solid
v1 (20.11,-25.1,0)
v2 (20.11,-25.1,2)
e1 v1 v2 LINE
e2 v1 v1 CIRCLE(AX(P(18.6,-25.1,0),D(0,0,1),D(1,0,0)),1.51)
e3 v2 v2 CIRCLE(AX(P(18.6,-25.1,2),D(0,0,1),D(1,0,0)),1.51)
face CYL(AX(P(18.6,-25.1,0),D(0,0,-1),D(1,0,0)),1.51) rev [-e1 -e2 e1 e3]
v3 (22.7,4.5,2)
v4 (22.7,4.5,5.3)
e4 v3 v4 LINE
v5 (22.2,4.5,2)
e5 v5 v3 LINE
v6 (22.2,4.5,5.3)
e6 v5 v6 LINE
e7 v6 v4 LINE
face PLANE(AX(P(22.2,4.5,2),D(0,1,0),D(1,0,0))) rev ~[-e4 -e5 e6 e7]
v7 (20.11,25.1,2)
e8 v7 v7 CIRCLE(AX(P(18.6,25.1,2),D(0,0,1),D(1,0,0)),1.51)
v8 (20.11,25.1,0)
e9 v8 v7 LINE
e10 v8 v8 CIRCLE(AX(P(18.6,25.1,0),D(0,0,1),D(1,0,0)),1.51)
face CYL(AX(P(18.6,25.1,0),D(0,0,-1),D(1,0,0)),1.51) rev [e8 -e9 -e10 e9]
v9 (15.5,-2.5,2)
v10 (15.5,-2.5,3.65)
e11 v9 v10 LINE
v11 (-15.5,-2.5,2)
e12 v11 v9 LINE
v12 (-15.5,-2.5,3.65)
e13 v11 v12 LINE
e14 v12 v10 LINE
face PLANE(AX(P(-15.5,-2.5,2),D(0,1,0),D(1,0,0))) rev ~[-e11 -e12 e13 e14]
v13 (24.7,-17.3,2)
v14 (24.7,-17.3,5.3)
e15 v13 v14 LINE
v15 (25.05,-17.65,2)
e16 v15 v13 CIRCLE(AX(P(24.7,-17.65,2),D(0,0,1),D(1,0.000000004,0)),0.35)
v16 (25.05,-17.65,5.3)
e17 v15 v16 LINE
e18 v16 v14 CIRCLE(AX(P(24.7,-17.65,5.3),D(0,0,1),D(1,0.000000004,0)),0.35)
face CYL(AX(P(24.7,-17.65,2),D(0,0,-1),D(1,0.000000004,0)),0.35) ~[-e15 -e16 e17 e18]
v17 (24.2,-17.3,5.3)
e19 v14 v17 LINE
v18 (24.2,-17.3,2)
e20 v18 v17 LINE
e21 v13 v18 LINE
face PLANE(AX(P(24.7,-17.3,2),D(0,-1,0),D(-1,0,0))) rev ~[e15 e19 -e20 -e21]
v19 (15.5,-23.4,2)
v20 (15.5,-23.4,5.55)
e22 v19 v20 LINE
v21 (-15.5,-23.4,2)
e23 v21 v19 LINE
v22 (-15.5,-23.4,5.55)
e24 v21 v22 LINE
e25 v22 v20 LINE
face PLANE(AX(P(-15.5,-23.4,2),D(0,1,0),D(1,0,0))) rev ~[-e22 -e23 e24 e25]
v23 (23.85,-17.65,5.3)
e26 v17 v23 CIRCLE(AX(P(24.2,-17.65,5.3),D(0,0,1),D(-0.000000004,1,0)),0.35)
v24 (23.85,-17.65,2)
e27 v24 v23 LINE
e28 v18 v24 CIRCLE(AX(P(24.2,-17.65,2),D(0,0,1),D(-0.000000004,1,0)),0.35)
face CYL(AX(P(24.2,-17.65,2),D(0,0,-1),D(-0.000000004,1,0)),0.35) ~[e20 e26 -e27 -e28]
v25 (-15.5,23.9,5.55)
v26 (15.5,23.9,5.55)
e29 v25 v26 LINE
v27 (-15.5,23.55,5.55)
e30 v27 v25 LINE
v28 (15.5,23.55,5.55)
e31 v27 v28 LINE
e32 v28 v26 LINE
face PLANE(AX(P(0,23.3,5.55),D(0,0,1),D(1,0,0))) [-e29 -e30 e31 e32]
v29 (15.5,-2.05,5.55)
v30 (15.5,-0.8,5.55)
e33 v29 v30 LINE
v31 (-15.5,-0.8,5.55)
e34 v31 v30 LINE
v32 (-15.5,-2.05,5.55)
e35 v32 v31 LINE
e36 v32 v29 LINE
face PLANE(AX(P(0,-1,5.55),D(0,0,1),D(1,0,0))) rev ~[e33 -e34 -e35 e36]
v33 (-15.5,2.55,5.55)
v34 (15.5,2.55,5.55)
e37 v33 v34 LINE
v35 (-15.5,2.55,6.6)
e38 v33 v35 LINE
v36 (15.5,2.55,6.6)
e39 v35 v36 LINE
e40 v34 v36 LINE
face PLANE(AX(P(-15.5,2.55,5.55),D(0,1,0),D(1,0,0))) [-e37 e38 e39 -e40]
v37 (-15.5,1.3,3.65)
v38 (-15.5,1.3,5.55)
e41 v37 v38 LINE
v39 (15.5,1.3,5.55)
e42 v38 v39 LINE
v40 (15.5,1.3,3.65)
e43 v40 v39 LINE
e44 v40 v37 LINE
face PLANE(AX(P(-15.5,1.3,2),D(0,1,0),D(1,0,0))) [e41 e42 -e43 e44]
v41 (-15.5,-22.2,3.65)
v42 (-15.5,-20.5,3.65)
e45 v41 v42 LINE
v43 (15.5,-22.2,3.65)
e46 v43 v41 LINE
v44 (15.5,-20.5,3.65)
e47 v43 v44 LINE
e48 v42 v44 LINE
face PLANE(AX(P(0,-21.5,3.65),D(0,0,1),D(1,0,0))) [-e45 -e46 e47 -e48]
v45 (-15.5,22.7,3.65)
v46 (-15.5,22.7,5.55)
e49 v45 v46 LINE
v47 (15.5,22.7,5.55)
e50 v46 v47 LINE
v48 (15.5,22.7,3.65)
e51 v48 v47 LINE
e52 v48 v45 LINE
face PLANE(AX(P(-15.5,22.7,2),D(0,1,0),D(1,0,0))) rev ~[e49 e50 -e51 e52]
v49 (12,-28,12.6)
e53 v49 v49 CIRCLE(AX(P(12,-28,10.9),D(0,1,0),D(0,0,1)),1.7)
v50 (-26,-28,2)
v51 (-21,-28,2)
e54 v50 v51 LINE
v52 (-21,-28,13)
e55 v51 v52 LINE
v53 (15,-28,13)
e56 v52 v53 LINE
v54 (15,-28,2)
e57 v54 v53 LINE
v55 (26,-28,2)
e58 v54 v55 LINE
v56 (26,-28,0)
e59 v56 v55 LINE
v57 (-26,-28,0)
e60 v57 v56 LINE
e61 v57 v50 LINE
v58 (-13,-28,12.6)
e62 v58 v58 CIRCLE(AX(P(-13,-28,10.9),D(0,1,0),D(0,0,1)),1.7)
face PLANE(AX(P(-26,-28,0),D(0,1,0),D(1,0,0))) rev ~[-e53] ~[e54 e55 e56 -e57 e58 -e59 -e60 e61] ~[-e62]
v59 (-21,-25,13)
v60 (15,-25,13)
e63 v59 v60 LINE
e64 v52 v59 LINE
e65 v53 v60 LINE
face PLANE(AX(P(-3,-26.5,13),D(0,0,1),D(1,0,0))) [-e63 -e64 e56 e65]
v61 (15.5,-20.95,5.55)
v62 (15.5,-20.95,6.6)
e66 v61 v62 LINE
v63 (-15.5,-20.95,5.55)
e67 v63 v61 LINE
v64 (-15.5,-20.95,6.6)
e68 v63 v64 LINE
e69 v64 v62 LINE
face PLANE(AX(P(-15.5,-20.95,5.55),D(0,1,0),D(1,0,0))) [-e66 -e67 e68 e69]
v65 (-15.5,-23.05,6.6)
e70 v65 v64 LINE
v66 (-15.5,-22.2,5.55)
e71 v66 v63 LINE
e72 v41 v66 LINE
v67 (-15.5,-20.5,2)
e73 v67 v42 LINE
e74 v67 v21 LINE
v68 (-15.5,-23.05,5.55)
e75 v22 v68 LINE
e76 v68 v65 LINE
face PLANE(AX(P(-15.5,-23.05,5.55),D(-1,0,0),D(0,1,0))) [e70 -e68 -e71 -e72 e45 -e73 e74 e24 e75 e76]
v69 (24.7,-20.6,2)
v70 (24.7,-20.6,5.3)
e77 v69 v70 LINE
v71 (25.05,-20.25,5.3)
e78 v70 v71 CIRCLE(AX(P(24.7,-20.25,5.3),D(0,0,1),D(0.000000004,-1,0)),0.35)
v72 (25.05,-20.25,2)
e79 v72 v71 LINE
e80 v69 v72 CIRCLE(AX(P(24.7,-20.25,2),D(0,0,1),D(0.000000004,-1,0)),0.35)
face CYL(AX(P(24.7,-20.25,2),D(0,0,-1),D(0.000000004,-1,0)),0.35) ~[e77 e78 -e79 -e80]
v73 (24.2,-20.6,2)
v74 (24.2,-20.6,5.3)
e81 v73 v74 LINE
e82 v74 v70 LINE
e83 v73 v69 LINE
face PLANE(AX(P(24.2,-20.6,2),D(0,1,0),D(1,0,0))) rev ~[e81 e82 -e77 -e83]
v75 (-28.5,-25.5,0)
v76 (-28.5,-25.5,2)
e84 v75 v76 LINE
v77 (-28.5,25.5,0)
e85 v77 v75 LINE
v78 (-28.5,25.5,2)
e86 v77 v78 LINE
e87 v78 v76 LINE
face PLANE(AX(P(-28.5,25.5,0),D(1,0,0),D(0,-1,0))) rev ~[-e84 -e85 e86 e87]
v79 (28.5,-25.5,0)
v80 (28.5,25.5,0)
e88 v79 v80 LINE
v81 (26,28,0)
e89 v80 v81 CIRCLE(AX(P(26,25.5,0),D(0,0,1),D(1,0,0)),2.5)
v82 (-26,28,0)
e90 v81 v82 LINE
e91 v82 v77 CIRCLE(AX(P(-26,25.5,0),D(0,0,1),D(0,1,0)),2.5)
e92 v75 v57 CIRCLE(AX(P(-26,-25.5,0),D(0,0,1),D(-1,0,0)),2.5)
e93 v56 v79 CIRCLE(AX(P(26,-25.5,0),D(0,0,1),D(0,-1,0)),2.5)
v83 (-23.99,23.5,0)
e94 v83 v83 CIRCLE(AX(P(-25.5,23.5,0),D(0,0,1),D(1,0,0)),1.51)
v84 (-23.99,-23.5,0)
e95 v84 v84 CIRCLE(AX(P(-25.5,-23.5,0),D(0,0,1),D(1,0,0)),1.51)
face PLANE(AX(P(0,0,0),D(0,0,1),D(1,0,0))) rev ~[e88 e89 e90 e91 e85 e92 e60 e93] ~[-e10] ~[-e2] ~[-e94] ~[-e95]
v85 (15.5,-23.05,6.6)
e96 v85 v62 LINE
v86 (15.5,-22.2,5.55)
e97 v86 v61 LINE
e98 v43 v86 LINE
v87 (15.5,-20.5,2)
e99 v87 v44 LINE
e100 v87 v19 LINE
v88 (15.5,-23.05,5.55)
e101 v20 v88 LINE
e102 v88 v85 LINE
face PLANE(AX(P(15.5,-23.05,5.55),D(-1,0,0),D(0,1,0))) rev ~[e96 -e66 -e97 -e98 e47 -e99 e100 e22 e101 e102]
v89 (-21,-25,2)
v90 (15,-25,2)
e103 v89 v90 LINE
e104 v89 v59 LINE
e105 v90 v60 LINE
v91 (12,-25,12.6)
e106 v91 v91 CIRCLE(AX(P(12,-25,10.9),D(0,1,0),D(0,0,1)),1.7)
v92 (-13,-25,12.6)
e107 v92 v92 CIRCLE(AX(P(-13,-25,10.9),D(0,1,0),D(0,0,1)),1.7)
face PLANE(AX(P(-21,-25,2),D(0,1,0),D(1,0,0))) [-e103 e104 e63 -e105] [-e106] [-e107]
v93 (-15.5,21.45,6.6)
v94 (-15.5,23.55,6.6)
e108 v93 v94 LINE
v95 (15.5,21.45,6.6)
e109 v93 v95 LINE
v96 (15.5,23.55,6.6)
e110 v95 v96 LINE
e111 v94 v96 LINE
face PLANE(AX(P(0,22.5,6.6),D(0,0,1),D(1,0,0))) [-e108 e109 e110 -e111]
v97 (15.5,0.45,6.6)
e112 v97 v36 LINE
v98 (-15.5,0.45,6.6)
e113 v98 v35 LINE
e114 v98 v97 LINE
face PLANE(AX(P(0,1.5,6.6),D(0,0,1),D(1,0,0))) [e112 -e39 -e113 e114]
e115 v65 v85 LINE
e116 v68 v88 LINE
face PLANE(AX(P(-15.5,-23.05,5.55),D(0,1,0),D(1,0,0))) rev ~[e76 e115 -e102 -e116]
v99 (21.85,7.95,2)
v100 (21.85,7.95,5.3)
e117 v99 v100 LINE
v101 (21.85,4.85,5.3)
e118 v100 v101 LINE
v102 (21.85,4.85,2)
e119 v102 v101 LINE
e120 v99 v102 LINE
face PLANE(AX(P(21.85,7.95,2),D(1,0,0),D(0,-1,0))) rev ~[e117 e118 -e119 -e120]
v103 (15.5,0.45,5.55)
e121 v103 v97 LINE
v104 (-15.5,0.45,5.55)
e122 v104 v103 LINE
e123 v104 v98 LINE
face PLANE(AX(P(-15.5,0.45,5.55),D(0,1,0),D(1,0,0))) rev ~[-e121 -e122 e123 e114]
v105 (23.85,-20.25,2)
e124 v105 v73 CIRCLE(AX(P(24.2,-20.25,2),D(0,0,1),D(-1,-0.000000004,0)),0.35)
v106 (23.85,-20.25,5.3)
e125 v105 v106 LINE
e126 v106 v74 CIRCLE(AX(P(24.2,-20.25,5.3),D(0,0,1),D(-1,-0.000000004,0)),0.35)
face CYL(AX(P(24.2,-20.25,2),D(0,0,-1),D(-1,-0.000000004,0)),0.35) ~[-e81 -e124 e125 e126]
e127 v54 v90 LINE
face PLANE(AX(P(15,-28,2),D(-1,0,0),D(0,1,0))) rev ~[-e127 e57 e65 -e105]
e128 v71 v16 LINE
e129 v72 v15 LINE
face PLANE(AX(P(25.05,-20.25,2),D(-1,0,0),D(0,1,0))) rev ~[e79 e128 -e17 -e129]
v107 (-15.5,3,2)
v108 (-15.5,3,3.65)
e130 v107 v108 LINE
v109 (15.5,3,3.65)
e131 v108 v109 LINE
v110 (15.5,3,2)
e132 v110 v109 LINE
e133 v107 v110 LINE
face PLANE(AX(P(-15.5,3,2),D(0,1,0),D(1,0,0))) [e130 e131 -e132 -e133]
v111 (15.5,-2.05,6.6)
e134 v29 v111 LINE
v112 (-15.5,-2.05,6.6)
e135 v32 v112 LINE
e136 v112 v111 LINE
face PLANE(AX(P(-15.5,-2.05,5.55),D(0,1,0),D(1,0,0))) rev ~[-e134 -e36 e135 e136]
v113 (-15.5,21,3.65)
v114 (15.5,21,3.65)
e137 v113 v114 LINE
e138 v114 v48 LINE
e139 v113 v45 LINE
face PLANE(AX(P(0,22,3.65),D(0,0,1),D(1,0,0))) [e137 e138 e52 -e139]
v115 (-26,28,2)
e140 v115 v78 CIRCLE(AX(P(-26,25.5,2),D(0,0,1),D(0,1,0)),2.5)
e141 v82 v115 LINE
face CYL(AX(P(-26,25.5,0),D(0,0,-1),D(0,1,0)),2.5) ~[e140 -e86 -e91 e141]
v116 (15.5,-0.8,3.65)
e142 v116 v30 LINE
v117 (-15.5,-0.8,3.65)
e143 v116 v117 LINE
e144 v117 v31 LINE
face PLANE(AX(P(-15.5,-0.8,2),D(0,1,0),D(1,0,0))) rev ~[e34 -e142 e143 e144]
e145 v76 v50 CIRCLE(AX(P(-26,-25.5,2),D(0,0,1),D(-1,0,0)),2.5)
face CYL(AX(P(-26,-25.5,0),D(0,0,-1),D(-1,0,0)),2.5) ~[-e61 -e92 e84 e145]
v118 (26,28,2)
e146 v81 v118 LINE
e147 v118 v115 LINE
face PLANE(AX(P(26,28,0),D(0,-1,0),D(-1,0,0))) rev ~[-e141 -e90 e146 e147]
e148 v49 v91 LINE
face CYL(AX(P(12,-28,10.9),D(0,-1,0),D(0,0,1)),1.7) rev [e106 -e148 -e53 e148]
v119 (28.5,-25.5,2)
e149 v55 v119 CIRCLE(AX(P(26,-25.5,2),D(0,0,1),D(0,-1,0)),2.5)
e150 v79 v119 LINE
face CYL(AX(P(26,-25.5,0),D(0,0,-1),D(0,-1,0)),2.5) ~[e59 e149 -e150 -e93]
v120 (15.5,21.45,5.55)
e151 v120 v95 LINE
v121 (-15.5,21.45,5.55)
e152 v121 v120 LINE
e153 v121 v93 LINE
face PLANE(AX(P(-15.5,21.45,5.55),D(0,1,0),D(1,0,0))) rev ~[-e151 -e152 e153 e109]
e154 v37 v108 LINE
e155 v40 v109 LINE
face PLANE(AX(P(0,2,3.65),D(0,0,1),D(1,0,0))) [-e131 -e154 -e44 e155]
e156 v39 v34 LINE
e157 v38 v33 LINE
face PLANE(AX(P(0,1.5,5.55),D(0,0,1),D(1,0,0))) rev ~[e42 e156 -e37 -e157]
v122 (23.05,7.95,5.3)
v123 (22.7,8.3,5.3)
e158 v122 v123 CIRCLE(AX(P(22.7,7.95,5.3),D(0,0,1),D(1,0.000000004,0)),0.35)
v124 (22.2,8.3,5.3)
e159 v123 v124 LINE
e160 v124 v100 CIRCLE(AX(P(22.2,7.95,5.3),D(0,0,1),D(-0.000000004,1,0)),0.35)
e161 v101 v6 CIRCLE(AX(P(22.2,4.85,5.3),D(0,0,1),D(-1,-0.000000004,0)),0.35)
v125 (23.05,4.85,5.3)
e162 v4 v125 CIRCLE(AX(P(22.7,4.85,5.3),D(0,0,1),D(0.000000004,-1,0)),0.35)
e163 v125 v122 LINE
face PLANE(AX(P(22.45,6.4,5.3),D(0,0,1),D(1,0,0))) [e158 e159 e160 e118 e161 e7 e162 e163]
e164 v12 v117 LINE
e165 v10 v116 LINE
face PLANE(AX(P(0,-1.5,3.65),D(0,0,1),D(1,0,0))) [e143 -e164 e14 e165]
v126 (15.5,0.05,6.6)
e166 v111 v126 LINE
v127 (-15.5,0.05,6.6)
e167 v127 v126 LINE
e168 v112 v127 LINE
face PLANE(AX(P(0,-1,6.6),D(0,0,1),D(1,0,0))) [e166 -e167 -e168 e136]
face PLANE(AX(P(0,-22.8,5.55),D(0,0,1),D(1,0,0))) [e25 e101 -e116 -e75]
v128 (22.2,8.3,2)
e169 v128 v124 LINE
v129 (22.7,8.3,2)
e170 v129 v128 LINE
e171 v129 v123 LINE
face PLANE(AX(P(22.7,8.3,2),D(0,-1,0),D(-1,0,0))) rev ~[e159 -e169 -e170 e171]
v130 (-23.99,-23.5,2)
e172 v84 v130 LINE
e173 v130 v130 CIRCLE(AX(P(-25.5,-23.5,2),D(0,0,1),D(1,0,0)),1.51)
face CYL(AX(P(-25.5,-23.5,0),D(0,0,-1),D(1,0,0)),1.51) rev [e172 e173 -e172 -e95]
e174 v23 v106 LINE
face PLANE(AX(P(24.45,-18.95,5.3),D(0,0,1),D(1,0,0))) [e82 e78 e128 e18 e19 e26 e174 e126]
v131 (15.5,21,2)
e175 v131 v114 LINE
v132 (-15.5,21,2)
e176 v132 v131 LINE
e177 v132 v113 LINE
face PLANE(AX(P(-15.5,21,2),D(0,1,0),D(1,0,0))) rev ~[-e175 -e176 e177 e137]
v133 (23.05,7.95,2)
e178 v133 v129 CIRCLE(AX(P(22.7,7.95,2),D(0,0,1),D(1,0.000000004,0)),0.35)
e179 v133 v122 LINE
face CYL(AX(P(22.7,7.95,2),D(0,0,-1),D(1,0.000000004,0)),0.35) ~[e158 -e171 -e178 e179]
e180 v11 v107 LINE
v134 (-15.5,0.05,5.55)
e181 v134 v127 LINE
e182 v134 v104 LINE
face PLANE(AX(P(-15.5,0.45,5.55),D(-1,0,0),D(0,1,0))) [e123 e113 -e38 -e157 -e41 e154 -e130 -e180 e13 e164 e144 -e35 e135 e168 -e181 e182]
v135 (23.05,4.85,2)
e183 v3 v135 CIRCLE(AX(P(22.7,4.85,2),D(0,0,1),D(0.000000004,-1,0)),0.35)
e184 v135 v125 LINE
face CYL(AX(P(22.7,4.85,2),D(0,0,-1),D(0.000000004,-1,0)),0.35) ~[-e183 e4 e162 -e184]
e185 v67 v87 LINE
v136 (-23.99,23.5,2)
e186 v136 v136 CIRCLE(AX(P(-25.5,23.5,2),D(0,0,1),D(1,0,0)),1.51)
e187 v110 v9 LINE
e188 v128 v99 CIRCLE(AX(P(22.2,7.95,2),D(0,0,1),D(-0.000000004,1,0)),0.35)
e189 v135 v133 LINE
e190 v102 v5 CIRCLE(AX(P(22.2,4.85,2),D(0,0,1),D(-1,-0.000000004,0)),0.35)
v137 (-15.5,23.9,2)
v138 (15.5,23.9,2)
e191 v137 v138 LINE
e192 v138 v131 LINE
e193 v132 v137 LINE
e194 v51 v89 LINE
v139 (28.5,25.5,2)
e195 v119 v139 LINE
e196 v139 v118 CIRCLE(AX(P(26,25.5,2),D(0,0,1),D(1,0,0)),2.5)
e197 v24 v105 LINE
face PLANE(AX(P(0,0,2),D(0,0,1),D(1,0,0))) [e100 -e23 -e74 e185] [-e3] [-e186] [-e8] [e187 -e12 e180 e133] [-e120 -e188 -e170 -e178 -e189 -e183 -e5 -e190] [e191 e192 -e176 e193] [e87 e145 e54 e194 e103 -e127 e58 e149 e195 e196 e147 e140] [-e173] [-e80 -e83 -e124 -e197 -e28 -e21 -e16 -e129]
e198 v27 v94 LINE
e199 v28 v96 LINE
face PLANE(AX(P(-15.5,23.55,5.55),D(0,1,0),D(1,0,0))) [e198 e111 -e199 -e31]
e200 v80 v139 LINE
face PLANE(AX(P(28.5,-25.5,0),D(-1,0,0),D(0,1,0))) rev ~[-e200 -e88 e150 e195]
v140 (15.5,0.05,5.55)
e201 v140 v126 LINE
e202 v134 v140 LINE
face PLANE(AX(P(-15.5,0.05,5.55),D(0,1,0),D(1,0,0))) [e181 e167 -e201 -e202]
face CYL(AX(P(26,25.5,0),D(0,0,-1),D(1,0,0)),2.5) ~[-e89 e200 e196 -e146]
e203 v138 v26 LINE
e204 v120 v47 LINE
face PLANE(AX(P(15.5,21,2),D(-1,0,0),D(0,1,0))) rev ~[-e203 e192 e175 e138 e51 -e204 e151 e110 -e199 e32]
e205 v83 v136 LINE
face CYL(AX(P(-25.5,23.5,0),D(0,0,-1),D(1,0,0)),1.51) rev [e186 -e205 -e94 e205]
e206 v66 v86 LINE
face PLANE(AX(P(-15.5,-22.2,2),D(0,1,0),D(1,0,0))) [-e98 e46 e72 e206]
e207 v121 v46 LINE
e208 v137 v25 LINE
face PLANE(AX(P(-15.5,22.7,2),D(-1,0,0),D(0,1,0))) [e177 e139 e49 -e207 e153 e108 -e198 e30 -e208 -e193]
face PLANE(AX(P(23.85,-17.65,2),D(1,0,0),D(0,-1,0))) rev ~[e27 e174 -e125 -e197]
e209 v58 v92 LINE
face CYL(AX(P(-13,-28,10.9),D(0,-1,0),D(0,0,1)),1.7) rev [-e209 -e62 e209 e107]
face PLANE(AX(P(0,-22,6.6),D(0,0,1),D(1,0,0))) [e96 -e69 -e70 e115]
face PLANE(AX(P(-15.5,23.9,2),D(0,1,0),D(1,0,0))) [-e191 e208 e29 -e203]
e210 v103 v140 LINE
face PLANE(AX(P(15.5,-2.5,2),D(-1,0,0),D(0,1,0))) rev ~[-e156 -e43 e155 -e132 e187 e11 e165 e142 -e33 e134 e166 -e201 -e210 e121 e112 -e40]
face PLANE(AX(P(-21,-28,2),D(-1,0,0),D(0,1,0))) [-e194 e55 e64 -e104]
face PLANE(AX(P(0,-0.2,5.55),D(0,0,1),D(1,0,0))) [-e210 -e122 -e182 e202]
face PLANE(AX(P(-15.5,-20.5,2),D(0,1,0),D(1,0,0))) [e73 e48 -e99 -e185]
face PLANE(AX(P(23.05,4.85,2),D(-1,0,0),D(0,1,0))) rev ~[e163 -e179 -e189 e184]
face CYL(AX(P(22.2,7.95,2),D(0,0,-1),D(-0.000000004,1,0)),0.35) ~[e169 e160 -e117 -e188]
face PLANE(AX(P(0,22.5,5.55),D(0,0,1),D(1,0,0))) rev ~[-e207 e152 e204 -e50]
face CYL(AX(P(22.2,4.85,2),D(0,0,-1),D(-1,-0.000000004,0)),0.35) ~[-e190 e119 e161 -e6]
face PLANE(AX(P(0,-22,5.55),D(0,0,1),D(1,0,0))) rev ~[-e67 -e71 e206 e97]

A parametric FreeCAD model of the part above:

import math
import FreeCAD as App
import Part
import Sketcher
from FreeCAD import Vector

doc = App.newDocument("Part")
body = doc.addObject("PartDesign::Body", "Body")

sketch1 = body.newObject("Sketcher::SketchObject", "Sketch")
sketch1.AttachmentSupport = (doc.getObject("XY_Plane"), [""])
sketch1.MapMode = "FlatFace"
sketch1.addGeometry([
    Part.LineSegment(Vector(-26, -28, 0), Vector(26, -28, 0)),
    Part.ArcOfCircle(Part.Circle(Vector(26, -25.5, 0), Vector(0, 0, 1), 2.5), math.radians(-90), math.radians(0)),
    Part.LineSegment(Vector(28.5, -25.5, 0), Vector(28.5, 25.5, 0)),
    Part.ArcOfCircle(Part.Circle(Vector(26, 25.5, 0), Vector(0, 0, 1), 2.5), math.radians(0), math.radians(90)),
    Part.LineSegment(Vector(26, 28, 0), Vector(-26, 28, 0)),
    Part.ArcOfCircle(Part.Circle(Vector(-26, 25.5, 0), Vector(0, 0, 1), 2.5), math.radians(90), math.radians(180)),
    Part.LineSegment(Vector(-28.5, 25.5, 0), Vector(-28.5, -25.5, 0)),
    Part.ArcOfCircle(Part.Circle(Vector(-26, -25.5, 0), Vector(0, 0, 1), 2.5), math.radians(180), math.radians(270)),
    Part.Circle(Vector(-25.5, -23.5, 0), Vector(0, 0, 1), 1.51),
    Part.Circle(Vector(18.6, -25.1, 0), Vector(0, 0, 1), 1.51),
    Part.Circle(Vector(-25.5, 23.5, 0), Vector(0, 0, 1), 1.51),
    Part.Circle(Vector(18.6, 25.1, 0), Vector(0, 0, 1), 1.51),
], False)
sketch1.addConstraint([
    Sketcher.Constraint("Tangent", 0, 2, 1, 1),
    Sketcher.Constraint("Tangent", 1, 2, 2, 1),
    Sketcher.Constraint("Tangent", 2, 2, 3, 1),
    Sketcher.Constraint("Tangent", 3, 2, 4, 1),
    Sketcher.Constraint("Tangent", 4, 2, 5, 1),
    Sketcher.Constraint("Tangent", 5, 2, 6, 1),
    Sketcher.Constraint("Tangent", 6, 2, 7, 1),
    Sketcher.Constraint("Tangent", 7, 2, 0, 1),
    Sketcher.Constraint("Horizontal", 0),
    Sketcher.Constraint("Vertical", 2),
    Sketcher.Constraint("Horizontal", 4),
    Sketcher.Constraint("Vertical", 6),
    Sketcher.Constraint("Equal", 1, 3),
    Sketcher.Constraint("Equal", 3, 5),
    Sketcher.Constraint("Equal", 5, 7),
    Sketcher.Constraint("Equal", 8, 9),
    Sketcher.Constraint("Equal", 9, 10),
    Sketcher.Constraint("Equal", 10, 11),
    Sketcher.Constraint("Symmetric", 1, 3, 5, 3, -1, 1),
    Sketcher.Constraint("Symmetric", 8, 3, 10, 3, -1),
    Sketcher.Constraint("Symmetric", 9, 3, 11, 3, -1),
    Sketcher.Constraint("Radius", 1, 2.5),
    Sketcher.Constraint("Diameter", 8, 3.02),
    Sketcher.Constraint("DistanceX", 0, 1, 0, 2, 52.0),
    Sketcher.Constraint("DistanceY", 2, 1, 2, 2, 51.0),
    Sketcher.Constraint("DistanceY", 7, 3, 8, 3, 2.0),
    Sketcher.Constraint("DistanceX", 5, 2, 10, 3, 3.0),
    Sketcher.Constraint("DistanceX", -1, 1, 9, 3, 18.6),
    Sketcher.Constraint("DistanceY", 9, 3, -1, 1, 25.1),
])
pad1 = body.newObject("PartDesign::Pad", "Pad")
pad1.Profile = sketch1
pad1.Length = 2

sketch2 = body.newObject("Sketcher::SketchObject", "Sketch001")
sketch2.AttachmentSupport = (doc.getObject("XY_Plane"), [""])
sketch2.MapMode = "FlatFace"
sketch2.AttachmentOffset = App.Placement(Vector(0, 0, 2), App.Rotation())
sketch2.addGeometry([
    Part.LineSegment(Vector(-21, -25, 0), Vector(-21, -28, 0)),
    Part.LineSegment(Vector(-21, -28, 0), Vector(15, -28, 0)),
    Part.LineSegment(Vector(15, -28, 0), Vector(15, -25, 0)),
    Part.LineSegment(Vector(15, -25, 0), Vector(-21, -25, 0)),
], False)
sketch2.addConstraint([
    Sketcher.Constraint("Coincident", 0, 2, 1, 1),
    Sketcher.Constraint("Coincident", 1, 2, 2, 1),
    Sketcher.Constraint("Coincident", 2, 2, 3, 1),
    Sketcher.Constraint("Coincident", 3, 2, 0, 1),
    Sketcher.Constraint("Vertical", 0),
    Sketcher.Constraint("Horizontal", 1),
    Sketcher.Constraint("Vertical", 2),
    Sketcher.Constraint("Horizontal", 3),
    Sketcher.Constraint("DistanceX", 1, 1, 1, 2, 36.0),
    Sketcher.Constraint("DistanceY", 0, 2, 0, 1, 3.0),
    Sketcher.Constraint("DistanceX", 0, 2, -1, 1, 21.0),
    Sketcher.Constraint("DistanceY", 0, 2, -1, 1, 28.0),
])
pad2 = body.newObject("PartDesign::Pad", "Pad001")
pad2.Profile = sketch2
pad2.Length = 11

sketch3 = body.newObject("Sketcher::SketchObject", "Sketch002")
sketch3.AttachmentSupport = (doc.getObject("XZ_Plane"), [""])
sketch3.MapMode = "FlatFace"
sketch3.AttachmentOffset = App.Placement(Vector(0, 0, 28), App.Rotation())
sketch3.addGeometry([
    Part.Circle(Vector(-13, 10.9, 0), Vector(0, 0, 1), 1.7),
    Part.Circle(Vector(12, 10.9, 0), Vector(0, 0, 1), 1.7),
], False)
sketch3.addConstraint([
    Sketcher.Constraint("Equal", 0, 1),
    Sketcher.Constraint("Horizontal", 0, 3, 1, 3),
    Sketcher.Constraint("Diameter", 0, 3.4),
    Sketcher.Constraint("DistanceX", 0, 3, -1, 1, 13.0),
    Sketcher.Constraint("DistanceX", -1, 1, 1, 3, 12.0),
    Sketcher.Constraint("DistanceY", -1, 1, 0, 3, 10.9),
])
pocket1 = body.newObject("PartDesign::Pocket", "Pocket")
pocket1.Profile = sketch3
pocket1.Length = 3

sketch4 = body.newObject("Sketcher::SketchObject", "Sketch003")
sketch4.AttachmentSupport = (doc.getObject("XY_Plane"), [""])
sketch4.MapMode = "FlatFace"
sketch4.AttachmentOffset = App.Placement(Vector(0, 0, 2), App.Rotation())
sketch4.addGeometry([
    Part.LineSegment(Vector(-15.5, 3, 0), Vector(-15.5, 1, 0)),
    Part.LineSegment(Vector(-15.5, 1, 0), Vector(15.5, 1, 0)),
    Part.LineSegment(Vector(15.5, 1, 0), Vector(15.5, 3, 0)),
    Part.LineSegment(Vector(15.5, 3, 0), Vector(-15.5, 3, 0)),
    Part.LineSegment(Vector(-15.5, 23, 0), Vector(-15.5, 21, 0)),
    Part.LineSegment(Vector(-15.5, 21, 0), Vector(15.5, 21, 0)),
    Part.LineSegment(Vector(15.5, 21, 0), Vector(15.5, 23, 0)),
    Part.LineSegment(Vector(15.5, 23, 0), Vector(-15.5, 23, 0)),
], False)
sketch4.addConstraint([
    Sketcher.Constraint("Coincident", 0, 2, 1, 1),
    Sketcher.Constraint("Coincident", 1, 2, 2, 1),
    Sketcher.Constraint("Coincident", 2, 2, 3, 1),
    Sketcher.Constraint("Coincident", 3, 2, 0, 1),
    Sketcher.Constraint("Coincident", 4, 2, 5, 1),
    Sketcher.Constraint("Coincident", 5, 2, 6, 1),
    Sketcher.Constraint("Coincident", 6, 2, 7, 1),
    Sketcher.Constraint("Coincident", 7, 2, 4, 1),
    Sketcher.Constraint("Vertical", 0),
    Sketcher.Constraint("Horizontal", 1),
    Sketcher.Constraint("Vertical", 2),
    Sketcher.Constraint("Horizontal", 3),
    Sketcher.Constraint("Vertical", 4),
    Sketcher.Constraint("Horizontal", 5),
    Sketcher.Constraint("Vertical", 6),
    Sketcher.Constraint("Horizontal", 7),
    Sketcher.Constraint("Vertical", 3, 2, 4, 2),
    Sketcher.Constraint("Vertical", 2, 2, 5, 2),
    Sketcher.Constraint("Equal", 2, 4),
    Sketcher.Constraint("DistanceX", 1, 1, 1, 2, 31.0),
    Sketcher.Constraint("DistanceY", 0, 2, 0, 1, 2.0),
    Sketcher.Constraint("DistanceY", -1, 1, 0, 2, 1.0),
    Sketcher.Constraint("DistanceY", -1, 1, 4, 2, 21.0),
    Sketcher.Constraint("DistanceX", 0, 2, -1, 1, 15.5),
])
pad3 = body.newObject("PartDesign::Pad", "Pad002")
pad3.Profile = sketch4
pad3.Length = 1.65

sketch5 = body.newObject("Sketcher::SketchObject", "Sketch004")
sketch5.AttachmentSupport = (doc.getObject("XY_Plane"), [""])
sketch5.MapMode = "FlatFace"
sketch5.AttachmentOffset = App.Placement(Vector(0, 0, 2), App.Rotation())
sketch5.addGeometry([
    Part.LineSegment(Vector(-15.5, 1.3, 0), Vector(-15.5, 0.1, 0)),
    Part.LineSegment(Vector(-15.5, 0.1, 0), Vector(15.5, 0.1, 0)),
    Part.LineSegment(Vector(15.5, 0.1, 0), Vector(15.5, 1.3, 0)),
    Part.LineSegment(Vector(15.5, 1.3, 0), Vector(-15.5, 1.3, 0)),
    Part.LineSegment(Vector(-15.5, 23.9, 0), Vector(-15.5, 22.7, 0)),
    Part.LineSegment(Vector(-15.5, 22.7, 0), Vector(15.5, 22.7, 0)),
    Part.LineSegment(Vector(15.5, 22.7, 0), Vector(15.5, 23.9, 0)),
    Part.LineSegment(Vector(15.5, 23.9, 0), Vector(-15.5, 23.9, 0)),
], False)
sketch5.addConstraint([
    Sketcher.Constraint("Coincident", 0, 2, 1, 1),
    Sketcher.Constraint("Coincident", 1, 2, 2, 1),
    Sketcher.Constraint("Coincident", 2, 2, 3, 1),
    Sketcher.Constraint("Coincident", 3, 2, 0, 1),
    Sketcher.Constraint("Coincident", 4, 2, 5, 1),
    Sketcher.Constraint("Coincident", 5, 2, 6, 1),
    Sketcher.Constraint("Coincident", 6, 2, 7, 1),
    Sketcher.Constraint("Coincident", 7, 2, 4, 1),
    Sketcher.Constraint("Vertical", 0),
    Sketcher.Constraint("Horizontal", 1),
    Sketcher.Constraint("Vertical", 2),
    Sketcher.Constraint("Horizontal", 3),
    Sketcher.Constraint("Vertical", 4),
    Sketcher.Constraint("Horizontal", 5),
    Sketcher.Constraint("Vertical", 6),
    Sketcher.Constraint("Horizontal", 7),
    Sketcher.Constraint("Vertical", 3, 2, 4, 2),
    Sketcher.Constraint("Vertical", 2, 2, 5, 2),
    Sketcher.Constraint("Equal", 2, 4),
    Sketcher.Constraint("DistanceX", 1, 1, 1, 2, 31.0),
    Sketcher.Constraint("DistanceY", 0, 2, 0, 1, 1.2),
    Sketcher.Constraint("DistanceX", 0, 2, -1, 1, 15.5),
    Sketcher.Constraint("DistanceY", -1, 1, 0, 2, 0.1),
    Sketcher.Constraint("DistanceY", -1, 1, 4, 2, 22.7),
])
pad4 = body.newObject("PartDesign::Pad", "Pad003")
pad4.Profile = sketch5
pad4.Length = 3.55

sketch6 = body.newObject("Sketcher::SketchObject", "Sketch005")
sketch6.AttachmentSupport = (doc.getObject("XY_Plane"), [""])
sketch6.MapMode = "FlatFace"
sketch6.AttachmentOffset = App.Placement(Vector(0, 0, 5.55), App.Rotation())
sketch6.addGeometry([
    Part.LineSegment(Vector(-15.5, 2.55, 0), Vector(-15.5, 0.45, 0)),
    Part.LineSegment(Vector(-15.5, 0.45, 0), Vector(15.5, 0.45, 0)),
    Part.LineSegment(Vector(15.5, 0.45, 0), Vector(15.5, 2.55, 0)),
    Part.LineSegment(Vector(15.5, 2.55, 0), Vector(-15.5, 2.55, 0)),
    Part.LineSegment(Vector(-15.5, 23.55, 0), Vector(-15.5, 21.45, 0)),
    Part.LineSegment(Vector(-15.5, 21.45, 0), Vector(15.5, 21.45, 0)),
    Part.LineSegment(Vector(15.5, 21.45, 0), Vector(15.5, 23.55, 0)),
    Part.LineSegment(Vector(15.5, 23.55, 0), Vector(-15.5, 23.55, 0)),
], False)
sketch6.addConstraint([
    Sketcher.Constraint("Coincident", 0, 2, 1, 1),
    Sketcher.Constraint("Coincident", 1, 2, 2, 1),
    Sketcher.Constraint("Coincident", 2, 2, 3, 1),
    Sketcher.Constraint("Coincident", 3, 2, 0, 1),
    Sketcher.Constraint("Coincident", 4, 2, 5, 1),
    Sketcher.Constraint("Coincident", 5, 2, 6, 1),
    Sketcher.Constraint("Coincident", 6, 2, 7, 1),
    Sketcher.Constraint("Coincident", 7, 2, 4, 1),
    Sketcher.Constraint("Vertical", 0),
    Sketcher.Constraint("Horizontal", 1),
    Sketcher.Constraint("Vertical", 2),
    Sketcher.Constraint("Horizontal", 3),
    Sketcher.Constraint("Vertical", 4),
    Sketcher.Constraint("Horizontal", 5),
    Sketcher.Constraint("Vertical", 6),
    Sketcher.Constraint("Horizontal", 7),
    Sketcher.Constraint("Vertical", 3, 2, 4, 2),
    Sketcher.Constraint("Vertical", 2, 2, 5, 2),
    Sketcher.Constraint("Equal", 2, 4),
    Sketcher.Constraint("DistanceX", 1, 1, 1, 2, 31.0),
    Sketcher.Constraint("DistanceY", 0, 2, 0, 1, 2.1),
    Sketcher.Constraint("DistanceY", 0, 2, 4, 2, 21.0),
    Sketcher.Constraint("DistanceX", 0, 2, -1, 1, 15.5),
    Sketcher.Constraint("DistanceY", -1, 1, 0, 2, 0.45),
])
pad5 = body.newObject("PartDesign::Pad", "Pad004")
pad5.Profile = sketch6
pad5.Length = 1.05

sketch7 = body.newObject("Sketcher::SketchObject", "Sketch006")
sketch7.AttachmentSupport = (doc.getObject("XY_Plane"), [""])
sketch7.MapMode = "FlatFace"
sketch7.AttachmentOffset = App.Placement(Vector(0, 0, 2), App.Rotation())
sketch7.addGeometry([
    Part.LineSegment(Vector(-15.5, -20.5, 0), Vector(-15.5, -22.5, 0)),
    Part.LineSegment(Vector(-15.5, -22.5, 0), Vector(15.5, -22.5, 0)),
    Part.LineSegment(Vector(15.5, -22.5, 0), Vector(15.5, -20.5, 0)),
    Part.LineSegment(Vector(15.5, -20.5, 0), Vector(-15.5, -20.5, 0)),
    Part.LineSegment(Vector(-15.5, -0.5, 0), Vector(-15.5, -2.5, 0)),
    Part.LineSegment(Vector(-15.5, -2.5, 0), Vector(15.5, -2.5, 0)),
    Part.LineSegment(Vector(15.5, -2.5, 0), Vector(15.5, -0.5, 0)),
    Part.LineSegment(Vector(15.5, -0.5, 0), Vector(-15.5, -0.5, 0)),
], False)
sketch7.addConstraint([
    Sketcher.Constraint("Coincident", 0, 2, 1, 1),
    Sketcher.Constraint("Coincident", 1, 2, 2, 1),
    Sketcher.Constraint("Coincident", 2, 2, 3, 1),
    Sketcher.Constraint("Coincident", 3, 2, 0, 1),
    Sketcher.Constraint("Coincident", 4, 2, 5, 1),
    Sketcher.Constraint("Coincident", 5, 2, 6, 1),
    Sketcher.Constraint("Coincident", 6, 2, 7, 1),
    Sketcher.Constraint("Coincident", 7, 2, 4, 1),
    Sketcher.Constraint("Vertical", 0),
    Sketcher.Constraint("Horizontal", 1),
    Sketcher.Constraint("Vertical", 2),
    Sketcher.Constraint("Horizontal", 3),
    Sketcher.Constraint("Vertical", 4),
    Sketcher.Constraint("Horizontal", 5),
    Sketcher.Constraint("Vertical", 6),
    Sketcher.Constraint("Horizontal", 7),
    Sketcher.Constraint("Vertical", 3, 2, 4, 2),
    Sketcher.Constraint("Vertical", 2, 2, 5, 2),
    Sketcher.Constraint("Equal", 2, 4),
    Sketcher.Constraint("DistanceX", 1, 1, 1, 2, 31.0),
    Sketcher.Constraint("DistanceY", 0, 2, 0, 1, 2.0),
    Sketcher.Constraint("DistanceY", 3, 2, 4, 2, 18.0),
    Sketcher.Constraint("DistanceX", 0, 2, -1, 1, 15.5),
    Sketcher.Constraint("DistanceY", 0, 2, -1, 1, 22.5),
])
pad6 = body.newObject("PartDesign::Pad", "Pad005")
pad6.Profile = sketch7
pad6.Length = 1.65

sketch8 = body.newObject("Sketcher::SketchObject", "Sketch007")
sketch8.AttachmentSupport = (doc.getObject("XY_Plane"), [""])
sketch8.MapMode = "FlatFace"
sketch8.AttachmentOffset = App.Placement(Vector(0, 0, 2), App.Rotation())
sketch8.addGeometry([
    Part.LineSegment(Vector(-15.5, -22.2, 0), Vector(-15.5, -23.4, 0)),
    Part.LineSegment(Vector(-15.5, -23.4, 0), Vector(15.5, -23.4, 0)),
    Part.LineSegment(Vector(15.5, -23.4, 0), Vector(15.5, -22.2, 0)),
    Part.LineSegment(Vector(15.5, -22.2, 0), Vector(-15.5, -22.2, 0)),
    Part.LineSegment(Vector(-15.5, 0.4, 0), Vector(-15.5, -0.8, 0)),
    Part.LineSegment(Vector(-15.5, -0.8, 0), Vector(15.5, -0.8, 0)),
    Part.LineSegment(Vector(15.5, -0.8, 0), Vector(15.5, 0.4, 0)),
    Part.LineSegment(Vector(15.5, 0.4, 0), Vector(-15.5, 0.4, 0)),
], False)
sketch8.addConstraint([
    Sketcher.Constraint("Coincident", 0, 2, 1, 1),
    Sketcher.Constraint("Coincident", 1, 2, 2, 1),
    Sketcher.Constraint("Coincident", 2, 2, 3, 1),
    Sketcher.Constraint("Coincident", 3, 2, 0, 1),
    Sketcher.Constraint("Coincident", 4, 2, 5, 1),
    Sketcher.Constraint("Coincident", 5, 2, 6, 1),
    Sketcher.Constraint("Coincident", 6, 2, 7, 1),
    Sketcher.Constraint("Coincident", 7, 2, 4, 1),
    Sketcher.Constraint("Vertical", 0),
    Sketcher.Constraint("Horizontal", 1),
    Sketcher.Constraint("Vertical", 2),
    Sketcher.Constraint("Horizontal", 3),
    Sketcher.Constraint("Vertical", 4),
    Sketcher.Constraint("Horizontal", 5),
    Sketcher.Constraint("Vertical", 6),
    Sketcher.Constraint("Horizontal", 7),
    Sketcher.Constraint("Vertical", 3, 2, 4, 2),
    Sketcher.Constraint("Vertical", 2, 2, 5, 2),
    Sketcher.Constraint("Equal", 2, 4),
    Sketcher.Constraint("DistanceX", 1, 1, 1, 2, 31.0),
    Sketcher.Constraint("DistanceY", 0, 2, 0, 1, 1.2),
    Sketcher.Constraint("DistanceX", 0, 2, -1, 1, 15.5),
    Sketcher.Constraint("DistanceY", 0, 2, -1, 1, 23.4),
    Sketcher.Constraint("DistanceY", 4, 2, -1, 1, 0.8),
])
pad7 = body.newObject("PartDesign::Pad", "Pad006")
pad7.Profile = sketch8
pad7.Length = 3.55

sketch9 = body.newObject("Sketcher::SketchObject", "Sketch008")
sketch9.AttachmentSupport = (doc.getObject("XY_Plane"), [""])
sketch9.MapMode = "FlatFace"
sketch9.AttachmentOffset = App.Placement(Vector(0, 0, 5.55), App.Rotation())
sketch9.addGeometry([
    Part.LineSegment(Vector(-15.5, -20.95, 0), Vector(-15.5, -23.05, 0)),
    Part.LineSegment(Vector(-15.5, -23.05, 0), Vector(15.5, -23.05, 0)),
    Part.LineSegment(Vector(15.5, -23.05, 0), Vector(15.5, -20.95, 0)),
    Part.LineSegment(Vector(15.5, -20.95, 0), Vector(-15.5, -20.95, 0)),
    Part.LineSegment(Vector(-15.5, 0.05, 0), Vector(-15.5, -2.05, 0)),
    Part.LineSegment(Vector(-15.5, -2.05, 0), Vector(15.5, -2.05, 0)),
    Part.LineSegment(Vector(15.5, -2.05, 0), Vector(15.5, 0.05, 0)),
    Part.LineSegment(Vector(15.5, 0.05, 0), Vector(-15.5, 0.05, 0)),
], False)
sketch9.addConstraint([
    Sketcher.Constraint("Coincident", 0, 2, 1, 1),
    Sketcher.Constraint("Coincident", 1, 2, 2, 1),
    Sketcher.Constraint("Coincident", 2, 2, 3, 1),
    Sketcher.Constraint("Coincident", 3, 2, 0, 1),
    Sketcher.Constraint("Coincident", 4, 2, 5, 1),
    Sketcher.Constraint("Coincident", 5, 2, 6, 1),
    Sketcher.Constraint("Coincident", 6, 2, 7, 1),
    Sketcher.Constraint("Coincident", 7, 2, 4, 1),
    Sketcher.Constraint("Vertical", 0),
    Sketcher.Constraint("Horizontal", 1),
    Sketcher.Constraint("Vertical", 2),
    Sketcher.Constraint("Horizontal", 3),
    Sketcher.Constraint("Vertical", 4),
    Sketcher.Constraint("Horizontal", 5),
    Sketcher.Constraint("Vertical", 6),
    Sketcher.Constraint("Horizontal", 7),
    Sketcher.Constraint("Vertical", 3, 2, 4, 2),
    Sketcher.Constraint("Vertical", 2, 2, 5, 2),
    Sketcher.Constraint("Equal", 2, 4),
    Sketcher.Constraint("DistanceX", 1, 1, 1, 2, 31.0),
    Sketcher.Constraint("DistanceY", 0, 2, 0, 1, 2.1),
    Sketcher.Constraint("DistanceY", 0, 2, 4, 2, 21.0),
    Sketcher.Constraint("DistanceX", 0, 2, -1, 1, 15.5),
    Sketcher.Constraint("DistanceY", 0, 2, -1, 1, 23.05),
])
pad8 = body.newObject("PartDesign::Pad", "Pad007")
pad8.Profile = sketch9
pad8.Length = 1.05

sketch10 = body.newObject("Sketcher::SketchObject", "Sketch009")
sketch10.AttachmentSupport = (doc.getObject("XY_Plane"), [""])
sketch10.MapMode = "FlatFace"
sketch10.AttachmentOffset = App.Placement(Vector(0, 0, 2), App.Rotation())
sketch10.addGeometry([
    Part.LineSegment(Vector(22.2, 4.5, 0), Vector(22.7, 4.5, 0)),
    Part.ArcOfCircle(Part.Circle(Vector(22.7, 4.85, 0), Vector(0, 0, 1), 0.35), math.radians(-90), math.radians(0)),
    Part.LineSegment(Vector(23.05, 4.85, 0), Vector(23.05, 7.95, 0)),
    Part.ArcOfCircle(Part.Circle(Vector(22.7, 7.95, 0), Vector(0, 0, 1), 0.35), math.radians(0), math.radians(90)),
    Part.LineSegment(Vector(22.7, 8.3, 0), Vector(22.2, 8.3, 0)),
    Part.ArcOfCircle(Part.Circle(Vector(22.2, 7.95, 0), Vector(0, 0, 1), 0.35), math.radians(90), math.radians(180)),
    Part.LineSegment(Vector(21.85, 7.95, 0), Vector(21.85, 4.85, 0)),
    Part.ArcOfCircle(Part.Circle(Vector(22.2, 4.85, 0), Vector(0, 0, 1), 0.35), math.radians(-180), math.radians(-90)),
    Part.LineSegment(Vector(24.2, -20.6, 0), Vector(24.7, -20.6, 0)),
    Part.ArcOfCircle(Part.Circle(Vector(24.7, -20.25, 0), Vector(0, 0, 1), 0.35), math.radians(-90), math.radians(0)),
    Part.LineSegment(Vector(25.05, -20.25, 0), Vector(25.05, -17.65, 0)),
    Part.ArcOfCircle(Part.Circle(Vector(24.7, -17.65, 0), Vector(0, 0, 1), 0.35), math.radians(0), math.radians(90)),
    Part.LineSegment(Vector(24.7, -17.3, 0), Vector(24.2, -17.3, 0)),
    Part.ArcOfCircle(Part.Circle(Vector(24.2, -17.65, 0), Vector(0, 0, 1), 0.35), math.radians(90), math.radians(180)),
    Part.LineSegment(Vector(23.85, -17.65, 0), Vector(23.85, -20.25, 0)),
    Part.ArcOfCircle(Part.Circle(Vector(24.2, -20.25, 0), Vector(0, 0, 1), 0.35), math.radians(-180), math.radians(-90)),
], False)
sketch10.addConstraint([
    Sketcher.Constraint("Tangent", 0, 2, 1, 1),
    Sketcher.Constraint("Tangent", 1, 2, 2, 1),
    Sketcher.Constraint("Tangent", 2, 2, 3, 1),
    Sketcher.Constraint("Tangent", 3, 2, 4, 1),
    Sketcher.Constraint("Tangent", 4, 2, 5, 1),
    Sketcher.Constraint("Tangent", 5, 2, 6, 1),
    Sketcher.Constraint("Tangent", 6, 2, 7, 1),
    Sketcher.Constraint("Tangent", 7, 2, 0, 1),
    Sketcher.Constraint("Tangent", 8, 2, 9, 1),
    Sketcher.Constraint("Tangent", 9, 2, 10, 1),
    Sketcher.Constraint("Tangent", 10, 2, 11, 1),
    Sketcher.Constraint("Tangent", 11, 2, 12, 1),
    Sketcher.Constraint("Tangent", 12, 2, 13, 1),
    Sketcher.Constraint("Tangent", 13, 2, 14, 1),
    Sketcher.Constraint("Tangent", 14, 2, 15, 1),
    Sketcher.Constraint("Tangent", 15, 2, 8, 1),
    Sketcher.Constraint("Horizontal", 0),
    Sketcher.Constraint("Vertical", 2),
    Sketcher.Constraint("Horizontal", 4),
    Sketcher.Constraint("Vertical", 6),
    Sketcher.Constraint("Horizontal", 8),
    Sketcher.Constraint("Vertical", 10),
    Sketcher.Constraint("Horizontal", 12),
    Sketcher.Constraint("Vertical", 14),
    Sketcher.Constraint("Equal", 1, 3),
    Sketcher.Constraint("Equal", 3, 5),
    Sketcher.Constraint("Equal", 5, 7),
    Sketcher.Constraint("Equal", 7, 9),
    Sketcher.Constraint("Equal", 9, 11),
    Sketcher.Constraint("Equal", 11, 13),
    Sketcher.Constraint("Equal", 13, 15),
    Sketcher.Constraint("Equal", 4, 8),
    Sketcher.Constraint("Radius", 1, 0.35),
    Sketcher.Constraint("DistanceX", 0, 1, 0, 2, 0.5),
    Sketcher.Constraint("DistanceY", 2, 1, 2, 2, 3.1),
    Sketcher.Constraint("DistanceY", 10, 1, 10, 2, 2.6),
    Sketcher.Constraint("DistanceX", 1, 3, 9, 3, 2.0),
    Sketcher.Constraint("DistanceX", -1, 1, 1, 3, 22.7),
    Sketcher.Constraint("DistanceY", -1, 1, 0, 2, 4.5),
    Sketcher.Constraint("DistanceY", 8, 2, -1, 1, 20.6),
])
pad9 = body.newObject("PartDesign::Pad", "Pad008")
pad9.Profile = sketch10
pad9.Length = 3.3

doc.recompute()
